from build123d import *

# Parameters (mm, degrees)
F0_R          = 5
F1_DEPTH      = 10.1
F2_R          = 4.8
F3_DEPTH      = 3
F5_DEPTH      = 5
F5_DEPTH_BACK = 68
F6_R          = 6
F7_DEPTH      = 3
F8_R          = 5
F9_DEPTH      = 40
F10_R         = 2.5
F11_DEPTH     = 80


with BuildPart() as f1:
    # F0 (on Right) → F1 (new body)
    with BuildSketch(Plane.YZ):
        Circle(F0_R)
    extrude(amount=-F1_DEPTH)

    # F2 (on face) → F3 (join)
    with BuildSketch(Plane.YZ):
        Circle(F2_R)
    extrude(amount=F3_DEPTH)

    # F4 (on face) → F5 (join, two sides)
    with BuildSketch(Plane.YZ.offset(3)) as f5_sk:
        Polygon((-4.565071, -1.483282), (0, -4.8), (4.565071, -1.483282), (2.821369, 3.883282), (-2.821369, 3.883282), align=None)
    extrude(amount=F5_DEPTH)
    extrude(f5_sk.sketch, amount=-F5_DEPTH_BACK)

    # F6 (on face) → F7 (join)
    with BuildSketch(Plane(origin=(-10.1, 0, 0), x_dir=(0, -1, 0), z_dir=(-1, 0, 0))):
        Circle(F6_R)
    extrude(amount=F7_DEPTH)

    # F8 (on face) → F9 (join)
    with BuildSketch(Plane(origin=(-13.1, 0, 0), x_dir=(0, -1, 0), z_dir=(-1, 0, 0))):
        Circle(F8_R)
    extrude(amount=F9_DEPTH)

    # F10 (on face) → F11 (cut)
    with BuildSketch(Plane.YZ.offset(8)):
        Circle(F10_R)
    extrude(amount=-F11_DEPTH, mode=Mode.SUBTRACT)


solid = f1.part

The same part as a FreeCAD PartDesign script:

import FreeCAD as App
import Part
import Sketcher
from FreeCAD import Vector
Q = App.Units.Quantity


def add_polygon(sketch, points):
    """Adds a closed chain of lines whose ends are joined by coincident constraints."""
    first, n = sketch.GeometryCount, len(points)
    for a, b in zip(points, points[1:] + points[:1]):
        sketch.addGeometry(Part.LineSegment(App.Vector(*a, 0), App.Vector(*b, 0)), False)
    for i in range(n):
        sketch.addConstraint(Sketcher.Constraint("Coincident", first + i, 2, first + (i + 1) % n, 1))

doc = App.newDocument("Part")
body = doc.addObject("PartDesign::Body", "Body")

sketch1 = doc.addObject("Sketcher::SketchObject", "Sketch")
body.addObject(sketch1)
sketch1.AttachmentSupport = (doc.YZ_Plane, [""])
sketch1.MapMode = "FlatFace"
sketch1.addGeometry(Part.Circle(Vector(0, 0, 0), Vector(0, 0, 1), 5), False)
sketch1.addConstraint([
    Sketcher.Constraint("Coincident", 0, 3, -1, 1),
    Sketcher.Constraint("Diameter", 0, 10.0),
])
pad1 = doc.addObject("PartDesign::Pad", "Pad")
body.addObject(pad1)
pad1.Profile = sketch1
pad1.Length = 10.1
pad1.Reversed = True

sketch2 = doc.addObject("Sketcher::SketchObject", "Sketch001")
body.addObject(sketch2)
sketch2.AttachmentSupport = (doc.YZ_Plane, [""])
sketch2.MapMode = "FlatFace"
sketch2.addGeometry(Part.Circle(Vector(0, 0, 0), Vector(0, 0, 1), 4.8), False)
sketch2.addConstraint([
    Sketcher.Constraint("Coincident", 0, 3, -1, 1),
    Sketcher.Constraint("Diameter", 0, 9.6),
])
pad2 = doc.addObject("PartDesign::Pad", "Pad001")
body.addObject(pad2)
pad2.Profile = sketch2
pad2.Length = 3

sketch3 = doc.addObject("Sketcher::SketchObject", "Sketch002")
body.addObject(sketch3)
sketch3.AttachmentSupport = (doc.YZ_Plane, [""])
sketch3.MapMode = "FlatFace"
sketch3.AttachmentOffset = App.Placement(Vector(0, 0, 3), App.Rotation())
add_polygon(sketch3, [(-5, -1), (0, -5), (5, -1), (3, 4), (-3, 4)])
sketch3.addConstraint([
    Sketcher.Constraint("Horizontal", 3),
    Sketcher.Constraint("Symmetric", 1, 2, 4, 2, -2),
    Sketcher.Constraint("PointOnObject", 0, 2, -2),
    Sketcher.Constraint("Equal", 1, 2),
    Sketcher.Constraint("Equal", 2, 4),
    Sketcher.Constraint("Angle", 0, Q("-35.999998 deg")),
    Sketcher.Constraint("Angle", 2, Q("107.999997 deg")),
    Sketcher.Constraint("DistanceY", 0, 2, -1, 1, 4.8),
    Sketcher.Constraint("DistanceX", 2, 2, 1, 2, 1.743702),
])
pad3 = doc.addObject("PartDesign::Pad", "Pad002")
body.addObject(pad3)
pad3.Profile = sketch3
pad3.Type = "TwoLengths"
pad3.Length = 5
pad3.Length2 = 68

sketch4 = doc.addObject("Sketcher::SketchObject", "Sketch003")
body.addObject(sketch4)
sketch4.AttachmentSupport = (doc.YZ_Plane, [""])
sketch4.MapMode = "FlatFace"
sketch4.AttachmentOffset = App.Placement(Vector(0, 0, -10.1), App.Rotation())
sketch4.addGeometry(Part.Circle(Vector(0, 0, 0), Vector(0, 0, 1), 6), False)
sketch4.addConstraint([
    Sketcher.Constraint("Coincident", 0, 3, -1, 1),
    Sketcher.Constraint("Diameter", 0, 12.0),
])
pad4 = doc.addObject("PartDesign::Pad", "Pad003")
body.addObject(pad4)
pad4.Profile = sketch4
pad4.Length = 3
pad4.Reversed = True

sketch5 = doc.addObject("Sketcher::SketchObject", "Sketch004")
body.addObject(sketch5)
sketch5.AttachmentSupport = (doc.YZ_Plane, [""])
sketch5.MapMode = "FlatFace"
sketch5.AttachmentOffset = App.Placement(Vector(0, 0, -13.1), App.Rotation())
sketch5.addGeometry(Part.Circle(Vector(0, 0, 0), Vector(0, 0, 1), 5), False)
sketch5.addConstraint([
    Sketcher.Constraint("Coincident", 0, 3, -1, 1),
    Sketcher.Constraint("Diameter", 0, 10.0),
])
pad5 = doc.addObject("PartDesign::Pad", "Pad004")
body.addObject(pad5)
pad5.Profile = sketch5
pad5.Length = 40
pad5.Reversed = True

sketch6 = doc.addObject("Sketcher::SketchObject", "Sketch005")
body.addObject(sketch6)
sketch6.AttachmentSupport = (doc.YZ_Plane, [""])
sketch6.MapMode = "FlatFace"
sketch6.AttachmentOffset = App.Placement(Vector(0, 0, 8), App.Rotation())
sketch6.addGeometry(Part.Circle(Vector(0, 0, 0), Vector(0, 0, 1), 2.5), False)
sketch6.addConstraint([
    Sketcher.Constraint("Coincident", 0, 3, -1, 1),
    Sketcher.Constraint("Diameter", 0, 5.0),
])
pocket1 = doc.addObject("PartDesign::Pocket", "Pocket")
body.addObject(pocket1)
pocket1.Profile = sketch6
pocket1.Length = 80

doc.recompute()
